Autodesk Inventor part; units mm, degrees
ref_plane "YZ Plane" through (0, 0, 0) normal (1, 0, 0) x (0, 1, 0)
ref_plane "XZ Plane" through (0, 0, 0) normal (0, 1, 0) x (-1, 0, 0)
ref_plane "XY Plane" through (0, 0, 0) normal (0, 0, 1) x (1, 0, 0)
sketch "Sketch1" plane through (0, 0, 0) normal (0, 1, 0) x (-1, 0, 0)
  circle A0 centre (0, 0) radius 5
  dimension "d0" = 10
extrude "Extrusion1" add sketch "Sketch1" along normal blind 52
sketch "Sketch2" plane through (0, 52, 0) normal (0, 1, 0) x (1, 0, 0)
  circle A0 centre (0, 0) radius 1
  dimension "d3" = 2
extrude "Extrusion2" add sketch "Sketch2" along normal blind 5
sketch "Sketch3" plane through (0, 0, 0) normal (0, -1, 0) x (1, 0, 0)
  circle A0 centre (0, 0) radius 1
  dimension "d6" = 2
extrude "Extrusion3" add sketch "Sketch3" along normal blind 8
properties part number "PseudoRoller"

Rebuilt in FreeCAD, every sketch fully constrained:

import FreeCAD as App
import Part
import Sketcher
from FreeCAD import Vector
Q = App.Units.Quantity

doc = App.newDocument("Part")
body = doc.addObject("PartDesign::Body", "Body")

# Sketch on XZ plane
sketch1 = body.newObject("Sketcher::SketchObject", "Sketch")
sketch1.AttachmentSupport = (doc.getObject("XZ_Plane"), [""])
sketch1.MapMode = "FlatFace"
sketch1.addGeometry(Part.Circle(Vector(0, 0, 0), Vector(0, 0, 1), 5), False)
sketch1.addConstraint(Sketcher.Constraint("Coincident", 0, 3, -1, 1))
sketch1.addConstraint(Sketcher.Constraint("Diameter", 0, Q("10 mm")))
pad1 = body.newObject("PartDesign::Pad", "Pad")
pad1.Profile = sketch1
pad1.Length = 52
pad1.Reversed = True

# Sketch on XZ plane
sketch2 = body.newObject("Sketcher::SketchObject", "Sketch001")
sketch2.AttachmentSupport = (doc.getObject("XZ_Plane"), [""])
sketch2.MapMode = "FlatFace"
sketch2.AttachmentOffset = App.Placement(Vector(0, 0, -52), App.Rotation())
sketch2.addGeometry(Part.Circle(Vector(0, 0, 0), Vector(0, 0, 1), 1), False)
sketch2.addConstraint(Sketcher.Constraint("Coincident", 0, 3, -1, 1))
sketch2.addConstraint(Sketcher.Constraint("Diameter", 0, Q("2 mm")))
pad2 = body.newObject("PartDesign::Pad", "Pad001")
pad2.Profile = sketch2
pad2.Length = 5
pad2.Reversed = True

# Sketch on XZ plane
sketch3 = body.newObject("Sketcher::SketchObject", "Sketch002")
sketch3.AttachmentSupport = (doc.getObject("XZ_Plane"), [""])
sketch3.MapMode = "FlatFace"
sketch3.addGeometry(Part.Circle(Vector(0, 0, 0), Vector(0, 0, 1), 1), False)
sketch3.addConstraint(Sketcher.Constraint("Coincident", 0, 3, -1, 1))
sketch3.addConstraint(Sketcher.Constraint("Diameter", 0, Q("2 mm")))
pad3 = body.newObject("PartDesign::Pad", "Pad002")
pad3.Profile = sketch3
pad3.Length = 8

doc.recompute()
